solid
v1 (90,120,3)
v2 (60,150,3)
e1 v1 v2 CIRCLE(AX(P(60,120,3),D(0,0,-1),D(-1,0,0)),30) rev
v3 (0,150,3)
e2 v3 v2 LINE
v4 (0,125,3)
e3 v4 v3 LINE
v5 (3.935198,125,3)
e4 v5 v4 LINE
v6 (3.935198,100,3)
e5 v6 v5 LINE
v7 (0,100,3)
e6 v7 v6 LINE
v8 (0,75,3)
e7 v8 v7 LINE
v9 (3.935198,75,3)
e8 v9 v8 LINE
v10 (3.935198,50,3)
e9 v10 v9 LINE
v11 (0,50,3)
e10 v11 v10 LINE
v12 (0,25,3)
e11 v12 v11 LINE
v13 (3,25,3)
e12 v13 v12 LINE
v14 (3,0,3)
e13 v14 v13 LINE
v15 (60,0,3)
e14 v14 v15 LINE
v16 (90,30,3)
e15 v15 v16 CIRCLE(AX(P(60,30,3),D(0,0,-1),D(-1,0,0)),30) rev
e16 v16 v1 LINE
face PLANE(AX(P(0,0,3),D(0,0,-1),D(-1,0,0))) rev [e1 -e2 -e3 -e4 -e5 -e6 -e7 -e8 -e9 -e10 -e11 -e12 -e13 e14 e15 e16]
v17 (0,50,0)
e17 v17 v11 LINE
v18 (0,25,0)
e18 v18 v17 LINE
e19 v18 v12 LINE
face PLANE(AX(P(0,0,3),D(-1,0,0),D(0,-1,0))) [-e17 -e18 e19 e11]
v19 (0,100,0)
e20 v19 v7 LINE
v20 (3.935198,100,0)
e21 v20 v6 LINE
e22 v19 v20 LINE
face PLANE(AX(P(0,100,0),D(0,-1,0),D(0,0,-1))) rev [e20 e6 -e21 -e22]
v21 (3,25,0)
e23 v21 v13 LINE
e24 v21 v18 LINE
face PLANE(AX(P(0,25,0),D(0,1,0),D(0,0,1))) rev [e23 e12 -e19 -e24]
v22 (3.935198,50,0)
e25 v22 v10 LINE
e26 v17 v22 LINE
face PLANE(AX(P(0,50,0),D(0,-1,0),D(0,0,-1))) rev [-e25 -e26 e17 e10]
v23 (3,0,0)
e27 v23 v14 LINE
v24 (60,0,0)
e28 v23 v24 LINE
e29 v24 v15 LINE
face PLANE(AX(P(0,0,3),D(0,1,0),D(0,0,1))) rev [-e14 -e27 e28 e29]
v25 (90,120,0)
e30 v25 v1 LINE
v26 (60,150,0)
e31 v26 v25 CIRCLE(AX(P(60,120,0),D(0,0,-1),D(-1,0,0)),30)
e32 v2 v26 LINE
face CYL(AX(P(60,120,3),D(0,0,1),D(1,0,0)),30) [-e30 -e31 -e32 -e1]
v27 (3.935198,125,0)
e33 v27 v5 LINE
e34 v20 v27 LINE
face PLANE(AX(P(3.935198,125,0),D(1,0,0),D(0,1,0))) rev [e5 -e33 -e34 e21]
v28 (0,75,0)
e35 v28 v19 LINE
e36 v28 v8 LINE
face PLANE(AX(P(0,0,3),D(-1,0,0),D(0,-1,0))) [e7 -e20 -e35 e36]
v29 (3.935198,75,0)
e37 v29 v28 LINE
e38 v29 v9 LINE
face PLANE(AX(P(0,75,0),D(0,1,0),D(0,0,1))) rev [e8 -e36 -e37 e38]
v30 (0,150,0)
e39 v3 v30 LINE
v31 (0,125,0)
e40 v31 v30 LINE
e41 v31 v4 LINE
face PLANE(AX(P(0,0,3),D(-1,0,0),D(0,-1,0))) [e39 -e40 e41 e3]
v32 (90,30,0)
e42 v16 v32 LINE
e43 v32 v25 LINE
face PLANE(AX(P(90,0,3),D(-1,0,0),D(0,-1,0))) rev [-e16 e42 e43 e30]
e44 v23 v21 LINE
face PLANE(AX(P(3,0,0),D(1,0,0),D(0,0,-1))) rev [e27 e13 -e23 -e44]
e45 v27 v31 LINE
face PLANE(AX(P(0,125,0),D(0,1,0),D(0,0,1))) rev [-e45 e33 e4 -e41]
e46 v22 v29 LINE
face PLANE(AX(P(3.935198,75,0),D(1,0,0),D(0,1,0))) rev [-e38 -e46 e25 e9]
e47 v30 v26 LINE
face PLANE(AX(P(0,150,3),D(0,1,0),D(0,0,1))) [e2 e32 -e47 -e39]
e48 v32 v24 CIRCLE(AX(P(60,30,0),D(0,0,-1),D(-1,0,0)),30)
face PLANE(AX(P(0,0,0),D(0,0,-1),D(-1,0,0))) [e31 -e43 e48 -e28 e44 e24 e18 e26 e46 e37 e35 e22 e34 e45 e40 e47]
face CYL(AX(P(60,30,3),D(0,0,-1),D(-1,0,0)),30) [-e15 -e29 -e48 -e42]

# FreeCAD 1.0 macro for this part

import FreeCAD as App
import Part
import Sketcher

V = App.Vector
Q = App.Units.Quantity


def edges_at(feature, points):
    """Names of the edges that pass closest to the given points."""
    edges = feature.Shape.Edges
    near = lambda p: min(range(len(edges)), key=lambda i: edges[i].distToShape(Part.Vertex(*p))[0])
    return sorted({f"Edge{near(p) + 1}" for p in points})

doc = App.newDocument("Part")
params = doc.addObject("Spreadsheet::Sheet", "Params")
for row, (alias, value) in enumerate([
    ("sketch1_width", "90 mm"),
    ("sketch1_height", "150 mm"),
    ("pad1_length", "3 mm"),
    ("sketch2_width", "3 mm"),
    ("sketch2_height", "25 mm"),
    ("pocket1_length", "3 mm"),
    ("fillet_radius", "30 mm"),
], start=1):
    params.set(f"A{row}", alias)
    params.set(f"B{row}", "=" + value)
    params.setAlias(f"B{row}", alias)

body = doc.addObject("PartDesign::Body", "Body")

sketch1 = body.newObject("Sketcher::SketchObject", "Sketch")
sketch1.AttachmentSupport = (doc.getObject("XY_Plane"), [""])
sketch1.MapMode = "FlatFace"
sketch1.addGeometry(Part.LineSegment(V(0, 150, 0), V(0, 0, 0)), False)
sketch1.addGeometry(Part.LineSegment(V(0, 0, 0), V(90, 0, 0)), False)
sketch1.addGeometry(Part.LineSegment(V(90, 0, 0), V(90, 150, 0)), False)
sketch1.addGeometry(Part.LineSegment(V(90, 150, 0), V(0, 150, 0)), False)
sketch1.addConstraint(Sketcher.Constraint("Coincident", 0, 2, 1, 1))
sketch1.addConstraint(Sketcher.Constraint("Coincident", 1, 2, 2, 1))
sketch1.addConstraint(Sketcher.Constraint("Coincident", 2, 2, 3, 1))
sketch1.addConstraint(Sketcher.Constraint("Coincident", 3, 2, 0, 1))
sketch1.addConstraint(Sketcher.Constraint("Vertical", 0))
sketch1.addConstraint(Sketcher.Constraint("Horizontal", 1))
sketch1.addConstraint(Sketcher.Constraint("Vertical", 2))
sketch1.addConstraint(Sketcher.Constraint("Horizontal", 3))
sketch1.addConstraint(Sketcher.Constraint("Coincident", 0, 2, -1, 1))
sketch1.addConstraint(Sketcher.Constraint("DistanceX", 1, 1, 1, 2, Q("90 mm")))
sketch1.addConstraint(Sketcher.Constraint("DistanceY", 0, 2, 0, 1, Q("150 mm")))
sketch1.setExpression("Constraints[9]", "Params.sketch1_width")
sketch1.setExpression("Constraints[10]", "Params.sketch1_height")
pad1 = body.newObject("PartDesign::Pad", "Pad")
pad1.Profile = sketch1
pad1.setExpression("Length", "Params.pad1_length")

sketch2 = body.newObject("Sketcher::SketchObject", "Sketch001")
sketch2.AttachmentSupport = (doc.getObject("XY_Plane"), [""])
sketch2.MapMode = "FlatFace"
sketch2.AttachmentOffset = App.Placement(V(0, 0, 3), App.Rotation())
sketch2.addGeometry(Part.LineSegment(V(0, 125, 0), V(0, 100, 0)), False)
sketch2.addGeometry(Part.LineSegment(V(0, 100, 0), V(3.935198, 100, 0)), False)
sketch2.addGeometry(Part.LineSegment(V(3.935198, 100, 0), V(3.935198, 125, 0)), False)
sketch2.addGeometry(Part.LineSegment(V(3.935198, 125, 0), V(0, 125, 0)), False)
sketch2.addGeometry(Part.LineSegment(V(0, 75, 0), V(0, 50, 0)), False)
sketch2.addGeometry(Part.LineSegment(V(0, 50, 0), V(3.935198, 50, 0)), False)
sketch2.addGeometry(Part.LineSegment(V(3.935198, 50, 0), V(3.935198, 75, 0)), False)
sketch2.addGeometry(Part.LineSegment(V(3.935198, 75, 0), V(0, 75, 0)), False)
sketch2.addGeometry(Part.LineSegment(V(0, 25, 0), V(0, 0, 0)), False)
sketch2.addGeometry(Part.LineSegment(V(0, 0, 0), V(3, 0, 0)), False)
sketch2.addGeometry(Part.LineSegment(V(3, 0, 0), V(3, 25, 0)), False)
sketch2.addGeometry(Part.LineSegment(V(3, 25, 0), V(0, 25, 0)), False)
sketch2.addConstraint(Sketcher.Constraint("Coincident", 0, 2, 1, 1))
sketch2.addConstraint(Sketcher.Constraint("Coincident", 1, 2, 2, 1))
sketch2.addConstraint(Sketcher.Constraint("Coincident", 2, 2, 3, 1))
sketch2.addConstraint(Sketcher.Constraint("Coincident", 3, 2, 0, 1))
sketch2.addConstraint(Sketcher.Constraint("Coincident", 4, 2, 5, 1))
sketch2.addConstraint(Sketcher.Constraint("Coincident", 5, 2, 6, 1))
sketch2.addConstraint(Sketcher.Constraint("Coincident", 6, 2, 7, 1))
sketch2.addConstraint(Sketcher.Constraint("Coincident", 7, 2, 4, 1))
sketch2.addConstraint(Sketcher.Constraint("Coincident", 8, 2, 9, 1))
sketch2.addConstraint(Sketcher.Constraint("Coincident", 9, 2, 10, 1))
sketch2.addConstraint(Sketcher.Constraint("Coincident", 10, 2, 11, 1))
sketch2.addConstraint(Sketcher.Constraint("Coincident", 11, 2, 8, 1))
sketch2.addConstraint(Sketcher.Constraint("Vertical", 0))
sketch2.addConstraint(Sketcher.Constraint("Horizontal", 1))
sketch2.addConstraint(Sketcher.Constraint("Vertical", 2))
sketch2.addConstraint(Sketcher.Constraint("Horizontal", 3))
sketch2.addConstraint(Sketcher.Constraint("Vertical", 4))
sketch2.addConstraint(Sketcher.Constraint("Horizontal", 5))
sketch2.addConstraint(Sketcher.Constraint("Vertical", 6))
sketch2.addConstraint(Sketcher.Constraint("Horizontal", 7))
sketch2.addConstraint(Sketcher.Constraint("Vertical", 8))
sketch2.addConstraint(Sketcher.Constraint("Horizontal", 9))
sketch2.addConstraint(Sketcher.Constraint("Vertical", 10))
sketch2.addConstraint(Sketcher.Constraint("Horizontal", 11))
sketch2.addConstraint(Sketcher.Constraint("Coincident", 8, 2, -1, 1))
sketch2.addConstraint(Sketcher.Constraint("PointOnObject", 0, 2, -2))
sketch2.addConstraint(Sketcher.Constraint("PointOnObject", 4, 2, -2))
sketch2.addConstraint(Sketcher.Constraint("Vertical", 2, 2, 5, 2))
sketch2.addConstraint(Sketcher.Constraint("Equal", 2, 4))
sketch2.addConstraint(Sketcher.Constraint("Equal", 6, 8))
sketch2.addConstraint(Sketcher.Constraint("DistanceX", 9, 1, 9, 2, Q("3 mm")))
sketch2.addConstraint(Sketcher.Constraint("DistanceY", 0, 2, 0, 1, Q("25 mm")))
sketch2.addConstraint(Sketcher.Constraint("DistanceY", -1, 1, 0, 2, Q("100 mm")))
sketch2.addConstraint(Sketcher.Constraint("DistanceY", -1, 1, 4, 2, Q("50 mm")))
sketch2.addConstraint(Sketcher.Constraint("DistanceX", 1, 1, 1, 2, Q("3.935198 mm")))
sketch2.setExpression("Constraints[30]", "Params.sketch2_width")
sketch2.setExpression("Constraints[31]", "Params.sketch2_height")
pocket1 = body.newObject("PartDesign::Pocket", "Pocket")
pocket1.Profile = sketch2
pocket1.setExpression("Length", "Params.pocket1_length")
doc.recompute()

fillet = body.newObject("PartDesign::Fillet", "Fillet")
fillet.Base = (pocket1, edges_at(pocket1, [(90, 0, 1.5), (90, 150, 1.5)]))
fillet.setExpression("Radius", "Params.fillet_radius")

doc.recompute()
